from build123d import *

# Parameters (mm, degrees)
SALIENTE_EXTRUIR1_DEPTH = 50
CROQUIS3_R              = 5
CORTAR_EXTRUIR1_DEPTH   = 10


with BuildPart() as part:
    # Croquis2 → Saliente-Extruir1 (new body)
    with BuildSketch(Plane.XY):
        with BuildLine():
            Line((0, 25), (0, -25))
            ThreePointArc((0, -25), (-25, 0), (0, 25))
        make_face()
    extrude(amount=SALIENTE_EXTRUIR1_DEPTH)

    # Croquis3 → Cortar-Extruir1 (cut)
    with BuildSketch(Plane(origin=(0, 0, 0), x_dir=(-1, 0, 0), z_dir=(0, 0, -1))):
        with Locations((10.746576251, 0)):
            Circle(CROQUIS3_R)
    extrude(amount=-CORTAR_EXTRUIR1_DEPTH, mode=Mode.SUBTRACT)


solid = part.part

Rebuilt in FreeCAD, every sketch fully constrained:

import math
import FreeCAD as App
import Part
import Sketcher

doc = App.newDocument("Part")
params = doc.addObject("Spreadsheet::Sheet", "Params")
for row, (alias, value) in enumerate([
    ("sketch1_radius", "25 mm"),
    ("pad1_length", "50 mm"),
    ("sketch2_diameter", "10 mm"),
    ("pocket1_length", "10 mm"),
], start=1):
    params.set(f"A{row}", alias)
    params.set(f"B{row}", "=" + value)
    params.setAlias(f"B{row}", alias)

body = doc.addObject("PartDesign::Body", "Body")

sketch1 = body.newObject("Sketcher::SketchObject", "Sketch")
sketch1.AttachmentSupport = (doc.getObject("XY_Plane"), [""])
sketch1.MapMode = "FlatFace"
sketch1.addGeometry(Part.LineSegment(App.Vector(0, -25, 0), App.Vector(0, 25, 0)), False)
sketch1.addGeometry(Part.ArcOfCircle(Part.Circle(App.Vector(0, 0, 0), App.Vector(0, 0, 1), 25), math.radians(90), math.radians(270)), False)
sketch1.addConstraint(Sketcher.Constraint("Coincident", 0, 1, 1, 2))
sketch1.addConstraint(Sketcher.Constraint("Coincident", 1, 1, 0, 2))
sketch1.addConstraint(Sketcher.Constraint("Vertical", 0))
sketch1.addConstraint(Sketcher.Constraint("Coincident", 1, 3, -1, 1))
sketch1.addConstraint(Sketcher.Constraint("PointOnObject", 0, 1, -2))
sketch1.addConstraint(Sketcher.Constraint("Radius", 1, 25.0))
sketch1.setExpression("Constraints[5]", "Params.sketch1_radius")
pad1 = body.newObject("PartDesign::Pad", "Pad")
pad1.Profile = sketch1
pad1.setExpression("Length", "Params.pad1_length")

sketch2 = body.newObject("Sketcher::SketchObject", "Sketch001")
sketch2.AttachmentSupport = (doc.getObject("XY_Plane"), [""])
sketch2.MapMode = "FlatFace"
sketch2.addGeometry(Part.Circle(App.Vector(-11, 0, 0), App.Vector(0, 0, 1), 5), False)
sketch2.addConstraint(Sketcher.Constraint("PointOnObject", 0, 3, -1))
sketch2.addConstraint(Sketcher.Constraint("Diameter", 0, 10.0))
sketch2.addConstraint(Sketcher.Constraint("DistanceX", 0, 3, -1, 1, 10.746576))
sketch2.setExpression("Constraints[1]", "Params.sketch2_diameter")
pocket1 = body.newObject("PartDesign::Pocket", "Pocket")
pocket1.Profile = sketch2
pocket1.setExpression("Length", "Params.pocket1_length")
pocket1.Reversed = True

doc.recompute()
